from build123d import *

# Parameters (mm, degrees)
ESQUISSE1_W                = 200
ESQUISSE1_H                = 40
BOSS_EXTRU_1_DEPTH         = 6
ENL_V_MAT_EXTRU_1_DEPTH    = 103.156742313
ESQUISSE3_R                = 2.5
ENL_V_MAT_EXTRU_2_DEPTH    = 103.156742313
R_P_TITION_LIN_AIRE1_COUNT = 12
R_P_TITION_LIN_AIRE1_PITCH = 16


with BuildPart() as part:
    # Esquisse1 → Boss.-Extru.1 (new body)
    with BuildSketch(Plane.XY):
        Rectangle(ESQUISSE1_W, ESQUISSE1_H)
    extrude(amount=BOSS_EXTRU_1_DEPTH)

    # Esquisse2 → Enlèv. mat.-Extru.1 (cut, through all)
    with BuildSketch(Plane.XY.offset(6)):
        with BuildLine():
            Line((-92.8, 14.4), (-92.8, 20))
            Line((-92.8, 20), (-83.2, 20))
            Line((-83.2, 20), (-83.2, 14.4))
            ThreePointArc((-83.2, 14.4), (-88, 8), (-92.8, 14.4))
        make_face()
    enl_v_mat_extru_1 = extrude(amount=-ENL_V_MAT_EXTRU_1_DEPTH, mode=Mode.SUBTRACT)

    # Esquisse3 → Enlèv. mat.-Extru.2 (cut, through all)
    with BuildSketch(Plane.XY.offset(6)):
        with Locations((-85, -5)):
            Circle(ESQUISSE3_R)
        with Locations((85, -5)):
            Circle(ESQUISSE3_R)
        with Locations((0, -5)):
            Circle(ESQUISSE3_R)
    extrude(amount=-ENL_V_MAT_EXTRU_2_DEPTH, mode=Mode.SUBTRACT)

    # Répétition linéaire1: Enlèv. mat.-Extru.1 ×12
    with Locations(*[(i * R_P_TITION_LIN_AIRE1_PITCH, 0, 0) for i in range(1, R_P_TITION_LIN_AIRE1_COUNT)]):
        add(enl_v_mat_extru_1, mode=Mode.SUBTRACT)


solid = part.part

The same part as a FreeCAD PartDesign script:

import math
import FreeCAD as App
import Part
import Sketcher

V = App.Vector
Q = App.Units.Quantity


def add_polygon(sketch, points):
    """Adds a closed chain of lines whose ends are joined by coincident constraints."""
    first, n = sketch.GeometryCount, len(points)
    for a, b in zip(points, points[1:] + points[:1]):
        sketch.addGeometry(Part.LineSegment(App.Vector(*a, 0), App.Vector(*b, 0)), False)
    for i in range(n):
        sketch.addConstraint(Sketcher.Constraint("Coincident", first + i, 2, first + (i + 1) % n, 1))

doc = App.newDocument("Part")
body = doc.addObject("PartDesign::Body", "Body")

# Sketch on XY plane
sketch1 = body.newObject("Sketcher::SketchObject", "Sketch")
sketch1.AttachmentSupport = (doc.getObject("XY_Plane"), [""])
sketch1.MapMode = "FlatFace"
add_polygon(sketch1, [(-100, 20), (-100, -20), (100, -20), (100, 20)])  # lines 0-3
sketch1.addConstraint(Sketcher.Constraint("Vertical", 0))
sketch1.addConstraint(Sketcher.Constraint("Horizontal", 1))
sketch1.addConstraint(Sketcher.Constraint("Vertical", 2))
sketch1.addConstraint(Sketcher.Constraint("Horizontal", 3))
sketch1.addConstraint(Sketcher.Constraint("Symmetric", 0, 2, 2, 2, -1, 1))
sketch1.addConstraint(Sketcher.Constraint("DistanceX", 1, 1, 1, 2, Q("200 mm")))
sketch1.addConstraint(Sketcher.Constraint("DistanceY", 0, 2, 0, 1, Q("40 mm")))
pad1 = body.newObject("PartDesign::Pad", "Pad")
pad1.Profile = sketch1
pad1.Length = 6

# Sketch on XY plane
sketch2 = body.newObject("Sketcher::SketchObject", "Sketch001")
sketch2.AttachmentSupport = (doc.getObject("XY_Plane"), [""])
sketch2.MapMode = "FlatFace"
sketch2.AttachmentOffset = App.Placement(V(0, 0, 6), App.Rotation())
sketch2.addGeometry(Part.LineSegment(V(-92.8, 20, 0), V(-92.8, 14.4, 0)), False)
sketch2.addGeometry(Part.ArcOfCircle(Part.Circle(V(-88, 13, 0), V(0, 0, 1), 5), math.radians(163.739795), math.radians(376.260205)), False)
sketch2.addGeometry(Part.LineSegment(V(-83.2, 14.4, 0), V(-83.2, 20, 0)), False)
sketch2.addGeometry(Part.LineSegment(V(-83.2, 20, 0), V(-92.8, 20, 0)), False)
sketch2.addConstraint(Sketcher.Constraint("Coincident", 0, 2, 1, 1))
sketch2.addConstraint(Sketcher.Constraint("Coincident", 1, 2, 2, 1))
sketch2.addConstraint(Sketcher.Constraint("Coincident", 2, 2, 3, 1))
sketch2.addConstraint(Sketcher.Constraint("Coincident", 3, 2, 0, 1))
sketch2.addConstraint(Sketcher.Constraint("Vertical", 0))
sketch2.addConstraint(Sketcher.Constraint("Vertical", 2))
sketch2.addConstraint(Sketcher.Constraint("Horizontal", 3))
sketch2.addConstraint(Sketcher.Constraint("Horizontal", 0, 2, 1, 2))
sketch2.addConstraint(Sketcher.Constraint("Radius", 1, Q("5 mm")))
sketch2.addConstraint(Sketcher.Constraint("DistanceX", 3, 2, 3, 1, Q("9.6 mm")))
sketch2.addConstraint(Sketcher.Constraint("DistanceY", 0, 2, 0, 1, Q("5.6 mm")))
sketch2.addConstraint(Sketcher.Constraint("DistanceX", 1, 3, -1, 1, Q("88 mm")))
sketch2.addConstraint(Sketcher.Constraint("DistanceY", -1, 1, 1, 3, Q("13 mm")))
pocket1 = body.newObject("PartDesign::Pocket", "Pocket")
pocket1.Profile = sketch2
pocket1.Type = "ThroughAll"

# Sketch on XY plane
sketch3 = body.newObject("Sketcher::SketchObject", "Sketch002")
sketch3.AttachmentSupport = (doc.getObject("XY_Plane"), [""])
sketch3.MapMode = "FlatFace"
sketch3.AttachmentOffset = App.Placement(V(0, 0, 6), App.Rotation())
sketch3.addGeometry(Part.Circle(V(-85, -5, 0), V(0, 0, 1), 2.5), False)
sketch3.addGeometry(Part.Circle(V(85, -5, 0), V(0, 0, 1), 2.5), False)
sketch3.addGeometry(Part.Circle(V(0, -5, 0), V(0, 0, 1), 2.5), False)
sketch3.addConstraint(Sketcher.Constraint("Equal", 0, 1))
sketch3.addConstraint(Sketcher.Constraint("Equal", 1, 2))
sketch3.addConstraint(Sketcher.Constraint("Symmetric", 0, 3, 1, 3, -2))
sketch3.addConstraint(Sketcher.Constraint("PointOnObject", 2, 3, -2))
sketch3.addConstraint(Sketcher.Constraint("Horizontal", 1, 3, 2, 3))
sketch3.addConstraint(Sketcher.Constraint("Diameter", 0, Q("5 mm")))
sketch3.addConstraint(Sketcher.Constraint("DistanceX", 0, 3, -1, 1, Q("85 mm")))
sketch3.addConstraint(Sketcher.Constraint("DistanceY", 0, 3, -1, 1, Q("5 mm")))
pocket2 = body.newObject("PartDesign::Pocket", "Pocket001")
pocket2.Profile = sketch3
pocket2.Type = "ThroughAll"
doc.recompute()

linearpattern = body.newObject("PartDesign::LinearPattern", "LinearPattern")
linearpattern.Originals = [pocket1]
linearpattern.Direction = (doc.getObject("X_Axis"), [""])
linearpattern.Mode = "offset"
linearpattern.Offset = 16
linearpattern.Occurrences = 12
body.Tip = linearpattern

doc.recompute()
